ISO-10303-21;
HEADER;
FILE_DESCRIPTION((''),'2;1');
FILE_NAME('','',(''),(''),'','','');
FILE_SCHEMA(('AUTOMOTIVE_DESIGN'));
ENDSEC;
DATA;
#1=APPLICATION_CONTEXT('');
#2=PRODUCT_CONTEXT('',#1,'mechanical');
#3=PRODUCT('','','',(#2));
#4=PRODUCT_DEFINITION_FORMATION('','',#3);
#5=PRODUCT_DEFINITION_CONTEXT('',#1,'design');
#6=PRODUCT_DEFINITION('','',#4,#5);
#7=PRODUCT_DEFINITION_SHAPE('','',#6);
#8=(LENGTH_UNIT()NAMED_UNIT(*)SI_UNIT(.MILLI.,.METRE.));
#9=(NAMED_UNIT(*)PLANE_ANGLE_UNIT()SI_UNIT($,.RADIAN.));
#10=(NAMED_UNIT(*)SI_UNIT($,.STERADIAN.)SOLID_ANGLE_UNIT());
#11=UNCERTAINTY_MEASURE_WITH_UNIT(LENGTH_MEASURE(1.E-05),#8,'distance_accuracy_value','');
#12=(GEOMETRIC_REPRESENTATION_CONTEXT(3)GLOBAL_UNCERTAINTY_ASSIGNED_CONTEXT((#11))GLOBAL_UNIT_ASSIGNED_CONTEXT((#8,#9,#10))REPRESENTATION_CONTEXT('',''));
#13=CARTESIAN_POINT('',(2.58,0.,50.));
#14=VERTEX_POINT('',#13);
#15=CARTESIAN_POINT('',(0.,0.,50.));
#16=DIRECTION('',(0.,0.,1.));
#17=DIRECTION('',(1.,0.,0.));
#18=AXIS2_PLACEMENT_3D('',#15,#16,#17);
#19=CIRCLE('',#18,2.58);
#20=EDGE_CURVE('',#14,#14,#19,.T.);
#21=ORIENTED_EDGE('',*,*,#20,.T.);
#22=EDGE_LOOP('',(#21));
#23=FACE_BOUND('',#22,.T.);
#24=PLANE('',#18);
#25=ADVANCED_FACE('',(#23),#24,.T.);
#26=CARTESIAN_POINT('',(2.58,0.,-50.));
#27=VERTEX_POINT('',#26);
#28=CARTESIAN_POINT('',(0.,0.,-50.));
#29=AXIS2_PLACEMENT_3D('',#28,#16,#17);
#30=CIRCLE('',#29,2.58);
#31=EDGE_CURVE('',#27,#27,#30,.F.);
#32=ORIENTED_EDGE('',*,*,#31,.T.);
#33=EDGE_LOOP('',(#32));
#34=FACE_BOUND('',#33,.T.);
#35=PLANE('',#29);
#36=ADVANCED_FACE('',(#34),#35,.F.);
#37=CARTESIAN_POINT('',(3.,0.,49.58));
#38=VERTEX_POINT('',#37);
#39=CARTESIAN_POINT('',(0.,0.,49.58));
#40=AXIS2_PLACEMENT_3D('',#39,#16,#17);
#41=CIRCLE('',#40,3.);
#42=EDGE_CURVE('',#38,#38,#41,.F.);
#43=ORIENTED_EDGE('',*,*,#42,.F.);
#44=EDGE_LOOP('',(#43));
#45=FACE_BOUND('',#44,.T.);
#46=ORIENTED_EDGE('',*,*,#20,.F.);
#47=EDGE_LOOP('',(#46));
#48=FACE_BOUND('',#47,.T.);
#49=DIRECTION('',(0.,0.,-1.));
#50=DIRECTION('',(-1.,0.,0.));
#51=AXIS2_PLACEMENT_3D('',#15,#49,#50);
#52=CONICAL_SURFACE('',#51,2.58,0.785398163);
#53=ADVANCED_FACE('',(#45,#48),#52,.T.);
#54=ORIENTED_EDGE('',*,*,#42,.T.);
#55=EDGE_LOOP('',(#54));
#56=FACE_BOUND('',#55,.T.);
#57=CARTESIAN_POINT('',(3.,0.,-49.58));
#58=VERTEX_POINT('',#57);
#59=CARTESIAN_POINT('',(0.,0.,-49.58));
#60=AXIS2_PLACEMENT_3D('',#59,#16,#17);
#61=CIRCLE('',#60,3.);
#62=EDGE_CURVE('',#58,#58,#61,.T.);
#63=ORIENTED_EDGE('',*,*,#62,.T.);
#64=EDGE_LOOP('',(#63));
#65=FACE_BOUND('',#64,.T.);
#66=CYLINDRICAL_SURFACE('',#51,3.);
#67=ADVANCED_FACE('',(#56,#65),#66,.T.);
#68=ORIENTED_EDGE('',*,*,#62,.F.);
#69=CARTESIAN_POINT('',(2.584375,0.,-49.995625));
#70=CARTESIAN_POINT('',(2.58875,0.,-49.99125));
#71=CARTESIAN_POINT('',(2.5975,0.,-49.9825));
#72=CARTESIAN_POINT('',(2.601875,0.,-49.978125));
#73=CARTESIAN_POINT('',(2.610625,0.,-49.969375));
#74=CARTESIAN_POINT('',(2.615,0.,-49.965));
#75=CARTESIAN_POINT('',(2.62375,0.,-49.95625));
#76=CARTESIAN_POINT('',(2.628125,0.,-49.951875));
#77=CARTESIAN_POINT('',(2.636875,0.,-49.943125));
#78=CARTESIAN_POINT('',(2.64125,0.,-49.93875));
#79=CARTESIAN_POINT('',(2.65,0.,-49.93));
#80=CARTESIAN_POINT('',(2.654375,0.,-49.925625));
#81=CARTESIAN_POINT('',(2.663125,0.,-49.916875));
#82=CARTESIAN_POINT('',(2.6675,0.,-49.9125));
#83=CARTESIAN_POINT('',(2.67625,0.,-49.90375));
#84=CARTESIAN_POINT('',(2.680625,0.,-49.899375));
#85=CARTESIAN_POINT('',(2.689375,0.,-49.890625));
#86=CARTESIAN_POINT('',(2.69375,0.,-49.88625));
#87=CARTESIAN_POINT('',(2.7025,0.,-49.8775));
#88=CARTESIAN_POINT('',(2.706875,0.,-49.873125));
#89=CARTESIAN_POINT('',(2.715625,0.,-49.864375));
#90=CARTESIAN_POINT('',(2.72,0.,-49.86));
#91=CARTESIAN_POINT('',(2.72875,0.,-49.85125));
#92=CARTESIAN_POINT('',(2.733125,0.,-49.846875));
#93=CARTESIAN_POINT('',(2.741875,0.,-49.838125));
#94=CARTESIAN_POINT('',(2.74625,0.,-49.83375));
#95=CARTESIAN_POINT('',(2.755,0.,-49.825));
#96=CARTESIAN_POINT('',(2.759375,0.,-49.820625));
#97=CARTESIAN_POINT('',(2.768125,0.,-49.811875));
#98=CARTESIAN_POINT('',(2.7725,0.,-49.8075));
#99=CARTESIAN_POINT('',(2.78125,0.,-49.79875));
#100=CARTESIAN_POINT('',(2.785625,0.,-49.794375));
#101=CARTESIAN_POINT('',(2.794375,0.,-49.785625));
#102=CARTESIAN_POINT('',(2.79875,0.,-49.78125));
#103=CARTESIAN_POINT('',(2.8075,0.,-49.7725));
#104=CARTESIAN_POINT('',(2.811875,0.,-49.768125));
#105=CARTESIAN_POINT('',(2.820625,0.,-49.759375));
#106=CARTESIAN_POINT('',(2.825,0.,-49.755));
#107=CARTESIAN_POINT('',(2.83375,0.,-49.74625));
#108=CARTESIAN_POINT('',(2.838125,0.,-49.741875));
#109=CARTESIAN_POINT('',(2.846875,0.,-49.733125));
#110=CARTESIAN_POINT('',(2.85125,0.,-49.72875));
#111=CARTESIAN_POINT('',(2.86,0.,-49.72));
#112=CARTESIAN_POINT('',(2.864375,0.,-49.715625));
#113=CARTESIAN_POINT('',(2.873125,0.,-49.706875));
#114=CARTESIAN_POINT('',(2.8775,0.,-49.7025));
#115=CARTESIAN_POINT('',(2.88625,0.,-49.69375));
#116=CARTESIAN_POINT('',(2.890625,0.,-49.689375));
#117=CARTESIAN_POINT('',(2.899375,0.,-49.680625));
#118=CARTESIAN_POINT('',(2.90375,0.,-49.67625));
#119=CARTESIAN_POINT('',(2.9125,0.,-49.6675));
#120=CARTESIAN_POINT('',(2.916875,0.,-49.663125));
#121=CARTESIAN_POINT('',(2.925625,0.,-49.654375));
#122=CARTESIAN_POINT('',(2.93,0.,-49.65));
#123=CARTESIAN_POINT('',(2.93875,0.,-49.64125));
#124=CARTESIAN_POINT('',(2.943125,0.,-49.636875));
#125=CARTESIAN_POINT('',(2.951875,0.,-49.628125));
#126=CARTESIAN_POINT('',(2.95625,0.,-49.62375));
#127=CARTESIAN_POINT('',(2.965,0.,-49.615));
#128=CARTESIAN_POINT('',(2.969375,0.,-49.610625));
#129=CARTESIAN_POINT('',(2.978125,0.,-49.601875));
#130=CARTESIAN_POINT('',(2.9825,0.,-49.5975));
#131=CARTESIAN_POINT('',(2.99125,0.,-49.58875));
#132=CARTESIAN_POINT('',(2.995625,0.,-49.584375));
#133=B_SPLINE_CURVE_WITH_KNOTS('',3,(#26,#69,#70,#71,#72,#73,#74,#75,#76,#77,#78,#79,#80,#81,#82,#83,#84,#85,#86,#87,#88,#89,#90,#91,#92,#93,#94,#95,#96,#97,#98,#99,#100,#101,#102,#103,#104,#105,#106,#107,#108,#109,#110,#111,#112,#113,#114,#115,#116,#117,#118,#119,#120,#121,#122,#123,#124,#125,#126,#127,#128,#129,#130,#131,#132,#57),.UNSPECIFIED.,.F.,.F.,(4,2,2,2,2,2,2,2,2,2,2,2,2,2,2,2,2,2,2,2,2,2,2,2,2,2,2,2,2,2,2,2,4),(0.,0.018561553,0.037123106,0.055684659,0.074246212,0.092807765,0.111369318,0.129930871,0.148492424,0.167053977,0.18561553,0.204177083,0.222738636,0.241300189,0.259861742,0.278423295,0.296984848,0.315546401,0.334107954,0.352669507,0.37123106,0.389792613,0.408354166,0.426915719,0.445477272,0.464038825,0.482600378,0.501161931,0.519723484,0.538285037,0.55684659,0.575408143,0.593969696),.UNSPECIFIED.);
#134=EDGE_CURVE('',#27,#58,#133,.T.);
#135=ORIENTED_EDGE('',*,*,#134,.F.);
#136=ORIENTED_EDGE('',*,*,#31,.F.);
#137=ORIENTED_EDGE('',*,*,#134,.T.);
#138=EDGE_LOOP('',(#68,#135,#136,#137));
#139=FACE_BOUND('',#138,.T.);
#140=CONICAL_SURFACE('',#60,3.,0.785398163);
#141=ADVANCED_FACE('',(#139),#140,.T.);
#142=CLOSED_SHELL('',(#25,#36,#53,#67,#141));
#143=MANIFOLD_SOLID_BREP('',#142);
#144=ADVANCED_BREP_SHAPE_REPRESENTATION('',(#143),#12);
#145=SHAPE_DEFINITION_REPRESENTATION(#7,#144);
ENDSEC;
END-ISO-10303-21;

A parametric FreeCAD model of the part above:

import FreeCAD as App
import Part
import Sketcher

V = App.Vector


def edges_at(feature, points):
    """Names of the edges that pass closest to the given points."""
    edges = feature.Shape.Edges
    near = lambda p: min(range(len(edges)), key=lambda i: edges[i].distToShape(Part.Vertex(*p))[0])
    return sorted({f"Edge{near(p) + 1}" for p in points})

doc = App.newDocument("Part")
body = doc.addObject("PartDesign::Body", "Body")

# Sketch on XY plane
sketch1 = body.newObject("Sketcher::SketchObject", "Sketch")
sketch1.AttachmentSupport = (doc.getObject("XY_Plane"), [""])
sketch1.MapMode = "FlatFace"
sketch1.addGeometry(Part.Circle(V(0, 0, 0), V(0, 0, 1), 3), False)
sketch1.addConstraint(Sketcher.Constraint("Coincident", 0, 3, -1, 1))
sketch1.addConstraint(Sketcher.Constraint("Diameter", 0, 6.0))
pad1 = body.newObject("PartDesign::Pad", "Pad")
pad1.Profile = sketch1
pad1.Type = "TwoLengths"
pad1.Length = 50
pad1.Length2 = 50
doc.recompute()

chamfer = body.newObject("PartDesign::Chamfer", "Chamfer")
chamfer.Base = (pad1, edges_at(pad1, [(-3, 0, -50), (-3, 0, 50)]))
chamfer.Size = 0.42

doc.recompute()
